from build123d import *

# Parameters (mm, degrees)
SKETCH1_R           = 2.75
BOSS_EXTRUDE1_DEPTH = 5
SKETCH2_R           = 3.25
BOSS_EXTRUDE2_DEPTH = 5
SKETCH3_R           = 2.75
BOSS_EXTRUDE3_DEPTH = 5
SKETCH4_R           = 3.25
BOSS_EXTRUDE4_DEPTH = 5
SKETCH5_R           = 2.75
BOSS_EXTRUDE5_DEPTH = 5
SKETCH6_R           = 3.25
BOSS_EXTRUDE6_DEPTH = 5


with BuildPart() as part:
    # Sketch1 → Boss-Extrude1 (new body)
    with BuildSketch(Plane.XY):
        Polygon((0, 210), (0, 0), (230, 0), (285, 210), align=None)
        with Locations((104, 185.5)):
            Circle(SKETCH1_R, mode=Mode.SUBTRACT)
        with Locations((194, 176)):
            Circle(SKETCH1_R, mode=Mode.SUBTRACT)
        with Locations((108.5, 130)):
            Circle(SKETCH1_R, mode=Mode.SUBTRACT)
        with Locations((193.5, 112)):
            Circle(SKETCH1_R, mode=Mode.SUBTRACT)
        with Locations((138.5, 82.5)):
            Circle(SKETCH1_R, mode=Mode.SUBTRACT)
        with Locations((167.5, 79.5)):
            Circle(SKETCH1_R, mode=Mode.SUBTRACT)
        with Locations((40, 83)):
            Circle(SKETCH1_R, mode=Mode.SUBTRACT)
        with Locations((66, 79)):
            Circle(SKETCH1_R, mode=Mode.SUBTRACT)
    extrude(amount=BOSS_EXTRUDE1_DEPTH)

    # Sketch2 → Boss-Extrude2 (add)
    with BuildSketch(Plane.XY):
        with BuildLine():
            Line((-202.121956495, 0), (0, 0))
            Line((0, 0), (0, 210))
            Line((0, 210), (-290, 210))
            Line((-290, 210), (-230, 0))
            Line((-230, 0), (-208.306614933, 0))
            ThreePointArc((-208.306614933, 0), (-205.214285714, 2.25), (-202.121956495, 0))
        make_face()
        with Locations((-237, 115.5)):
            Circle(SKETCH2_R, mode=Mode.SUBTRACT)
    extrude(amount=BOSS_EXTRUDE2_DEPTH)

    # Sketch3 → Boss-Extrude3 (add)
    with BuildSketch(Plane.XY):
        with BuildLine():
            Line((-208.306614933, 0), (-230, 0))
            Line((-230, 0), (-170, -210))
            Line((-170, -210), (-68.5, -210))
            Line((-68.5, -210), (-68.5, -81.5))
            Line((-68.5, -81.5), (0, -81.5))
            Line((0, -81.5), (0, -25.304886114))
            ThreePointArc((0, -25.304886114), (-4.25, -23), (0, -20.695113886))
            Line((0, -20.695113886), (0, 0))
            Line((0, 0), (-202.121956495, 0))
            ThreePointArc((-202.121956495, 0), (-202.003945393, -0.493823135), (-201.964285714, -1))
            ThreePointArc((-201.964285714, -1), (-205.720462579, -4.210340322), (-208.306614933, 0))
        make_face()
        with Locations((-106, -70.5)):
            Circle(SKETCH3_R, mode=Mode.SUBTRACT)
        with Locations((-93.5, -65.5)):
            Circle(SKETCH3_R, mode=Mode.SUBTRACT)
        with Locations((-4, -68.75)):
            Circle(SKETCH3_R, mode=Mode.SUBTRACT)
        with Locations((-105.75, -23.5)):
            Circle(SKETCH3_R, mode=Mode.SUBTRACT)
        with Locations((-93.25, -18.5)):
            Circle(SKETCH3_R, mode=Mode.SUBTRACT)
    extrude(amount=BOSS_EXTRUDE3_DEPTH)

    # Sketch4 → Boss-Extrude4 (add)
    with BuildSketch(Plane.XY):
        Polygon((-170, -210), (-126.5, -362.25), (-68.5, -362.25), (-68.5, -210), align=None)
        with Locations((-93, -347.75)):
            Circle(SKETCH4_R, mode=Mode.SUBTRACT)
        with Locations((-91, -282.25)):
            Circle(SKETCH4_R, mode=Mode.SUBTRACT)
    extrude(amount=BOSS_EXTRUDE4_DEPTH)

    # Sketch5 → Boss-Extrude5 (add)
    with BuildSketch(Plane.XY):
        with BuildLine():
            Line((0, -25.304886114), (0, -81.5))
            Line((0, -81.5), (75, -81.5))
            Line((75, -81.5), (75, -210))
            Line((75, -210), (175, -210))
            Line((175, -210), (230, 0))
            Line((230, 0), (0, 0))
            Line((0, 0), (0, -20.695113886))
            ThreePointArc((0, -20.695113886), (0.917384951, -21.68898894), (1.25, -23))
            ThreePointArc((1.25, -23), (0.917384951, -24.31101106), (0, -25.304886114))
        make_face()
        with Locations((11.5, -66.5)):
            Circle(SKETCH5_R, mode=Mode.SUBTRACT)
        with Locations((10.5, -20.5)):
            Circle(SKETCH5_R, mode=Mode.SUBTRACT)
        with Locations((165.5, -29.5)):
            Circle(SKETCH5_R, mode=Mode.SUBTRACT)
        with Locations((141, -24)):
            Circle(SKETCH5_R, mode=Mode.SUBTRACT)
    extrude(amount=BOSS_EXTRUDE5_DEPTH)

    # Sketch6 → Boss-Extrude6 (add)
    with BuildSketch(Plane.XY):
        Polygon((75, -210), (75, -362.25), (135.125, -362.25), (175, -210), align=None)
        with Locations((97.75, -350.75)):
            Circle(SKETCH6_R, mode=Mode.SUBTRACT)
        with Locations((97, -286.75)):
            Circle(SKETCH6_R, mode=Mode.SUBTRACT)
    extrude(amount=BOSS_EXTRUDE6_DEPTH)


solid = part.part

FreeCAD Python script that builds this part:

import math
import FreeCAD as App
import Part
import Sketcher

V = App.Vector
Q = App.Units.Quantity

doc = App.newDocument("Part")
body = doc.addObject("PartDesign::Body", "Body")

sketch1 = doc.addObject("Sketcher::SketchObject", "Sketch")
body.addObject(sketch1)
sketch1.AttachmentSupport = (doc.XY_Plane, [""])
sketch1.MapMode = "FlatFace"
sketch1.addGeometry([
    Part.LineSegment(V(0, 210, 0), V(0, 0, 0)),
    Part.LineSegment(V(0, 0, 0), V(230, 0, 0)),
    Part.LineSegment(V(230, 0, 0), V(285, 210, 0)),
    Part.LineSegment(V(285, 210, 0), V(0, 210, 0)),
    Part.Circle(V(40, 83, 0), V(0, 0, 1), 2.8),
    Part.Circle(V(66, 79, 0), V(0, 0, 1), 2.8),
    Part.Circle(V(108.5, 130, 0), V(0, 0, 1), 2.8),
    Part.Circle(V(138.5, 82.5, 0), V(0, 0, 1), 2.8),
    Part.Circle(V(167.5, 79.5, 0), V(0, 0, 1), 2.8),
    Part.Circle(V(193.5, 112, 0), V(0, 0, 1), 2.8),
    Part.Circle(V(104, 185.5, 0), V(0, 0, 1), 2.8),
    Part.Circle(V(194, 176, 0), V(0, 0, 1), 2.8),
], False)
sketch1.addConstraint([
    Sketcher.Constraint("Coincident", 0, 2, 1, 1),
    Sketcher.Constraint("Coincident", 1, 2, 2, 1),
    Sketcher.Constraint("Coincident", 2, 2, 3, 1),
    Sketcher.Constraint("Coincident", 3, 2, 0, 1),
    Sketcher.Constraint("Vertical", 0),
    Sketcher.Constraint("Horizontal", 1),
    Sketcher.Constraint("Horizontal", 3),
    Sketcher.Constraint("Coincident", 0, 2, -1, 1),
    Sketcher.Constraint("Equal", 4, 5),
    Sketcher.Constraint("Equal", 5, 6),
    Sketcher.Constraint("Equal", 6, 7),
    Sketcher.Constraint("Equal", 7, 8),
    Sketcher.Constraint("Equal", 8, 9),
    Sketcher.Constraint("Equal", 9, 10),
    Sketcher.Constraint("Equal", 10, 11),
    Sketcher.Constraint("Diameter", 4, Q("5.5 mm")),
    Sketcher.Constraint("DistanceX", 1, 1, 1, 2, Q("230 mm")),
    Sketcher.Constraint("DistanceX", 3, 2, 3, 1, Q("285 mm")),
    Sketcher.Constraint("DistanceY", 0, 2, 0, 1, Q("210 mm")),
    Sketcher.Constraint("DistanceX", -1, 1, 4, 3, Q("40 mm")),
    Sketcher.Constraint("DistanceY", -1, 1, 4, 3, Q("83 mm")),
    Sketcher.Constraint("DistanceX", -1, 1, 5, 3, Q("66 mm")),
    Sketcher.Constraint("DistanceY", -1, 1, 5, 3, Q("79 mm")),
    Sketcher.Constraint("DistanceY", -1, 1, 6, 3, Q("130 mm")),
    Sketcher.Constraint("DistanceY", -1, 1, 9, 3, Q("112 mm")),
    Sketcher.Constraint("DistanceX", -1, 1, 10, 3, Q("104 mm")),
    Sketcher.Constraint("DistanceX", -1, 1, 11, 3, Q("194 mm")),
    Sketcher.Constraint("DistanceY", -1, 1, 11, 3, Q("176 mm")),
    Sketcher.Constraint("DistanceX", 6, 3, 7, 3, Q("30 mm")),
    Sketcher.Constraint("DistanceX", 7, 3, 8, 3, Q("29 mm")),
    Sketcher.Constraint("DistanceY", 8, 3, 7, 3, Q("3 mm")),
    Sketcher.Constraint("DistanceX", 8, 3, 9, 3, Q("26 mm")),
    Sketcher.Constraint("DistanceY", 7, 3, 10, 3, Q("103 mm")),
    Sketcher.Constraint("DistanceX", -1, 1, 6, 3, Q("108.5 mm")),
    Sketcher.Constraint("DistanceY", -1, 1, 7, 3, Q("82.5 mm")),
])
pad1 = doc.addObject("PartDesign::Pad", "Pad")
body.addObject(pad1)
pad1.Profile = sketch1
pad1.Length = 5

sketch2 = doc.addObject("Sketcher::SketchObject", "Sketch001")
body.addObject(sketch2)
sketch2.AttachmentSupport = (doc.XY_Plane, [""])
sketch2.MapMode = "FlatFace"
sketch2.addGeometry([
    Part.LineSegment(V(-202.1, 0, 0), V(0, 0, 0)),
    Part.LineSegment(V(0, 0, 0), V(0, 210, 0)),
    Part.LineSegment(V(0, 210, 0), V(-290, 210, 0)),
    Part.LineSegment(V(-290, 210, 0), V(-230, 0, 0)),
    Part.LineSegment(V(-230, 0, 0), V(-208.3, 0, 0)),
    Part.ArcOfCircle(Part.Circle(V(-205.2, -1, 0), V(0, 0, 1), 3.2), math.radians(18), math.radians(162)),
    Part.Circle(V(-237, 115.5, 0), V(0, 0, 1), 3.2),
], False)
sketch2.addConstraint([
    Sketcher.Constraint("Coincident", 0, 2, 1, 1),
    Sketcher.Constraint("Coincident", 1, 2, 2, 1),
    Sketcher.Constraint("Coincident", 2, 2, 3, 1),
    Sketcher.Constraint("Coincident", 3, 2, 4, 1),
    Sketcher.Constraint("Coincident", 4, 2, 5, 2),
    Sketcher.Constraint("Coincident", 5, 1, 0, 1),
    Sketcher.Constraint("Horizontal", 0),
    Sketcher.Constraint("Vertical", 1),
    Sketcher.Constraint("Horizontal", 2),
    Sketcher.Constraint("Horizontal", 4),
    Sketcher.Constraint("Coincident", 0, 2, -1, 1),
    Sketcher.Constraint("Equal", 5, 6),
    Sketcher.Constraint("PointOnObject", 3, 2, -1),
    Sketcher.Constraint("Diameter", 6, Q("6.5 mm")),
    Sketcher.Constraint("DistanceX", 2, 2, 2, 1, Q("290 mm")),
    Sketcher.Constraint("DistanceY", 1, 1, 1, 2, Q("210 mm")),
    Sketcher.Constraint("DistanceY", 5, 3, -1, 1, Q("1 mm")),
    Sketcher.Constraint("DistanceX", 6, 3, -1, 1, Q("237 mm")),
    Sketcher.Constraint("DistanceX", 3, 2, -1, 1, Q("230 mm")),
    Sketcher.Constraint("DistanceY", -1, 1, 6, 3, Q("115.5 mm")),
    Sketcher.Constraint("DistanceX", 0, 1, 0, 2, Q("202.121956 mm")),
])
pad2 = doc.addObject("PartDesign::Pad", "Pad001")
body.addObject(pad2)
pad2.Profile = sketch2
pad2.Length = 5

sketch3 = doc.addObject("Sketcher::SketchObject", "Sketch002")
body.addObject(sketch3)
sketch3.AttachmentSupport = (doc.XY_Plane, [""])
sketch3.MapMode = "FlatFace"
sketch3.addGeometry([
    Part.LineSegment(V(-208.3, 0, 0), V(-230, 0, 0)),
    Part.LineSegment(V(-230, 0, 0), V(-170, -210, 0)),
    Part.LineSegment(V(-170, -210, 0), V(-68.5, -210, 0)),
    Part.LineSegment(V(-68.5, -210, 0), V(-68.5, -81.5, 0)),
    Part.LineSegment(V(-68.5, -81.5, 0), V(0, -81.5, 0)),
    Part.LineSegment(V(0, -81.5, 0), V(0, -25.3, 0)),
    Part.ArcOfCircle(Part.Circle(V(-1.5, -23, 0), V(0, 0, 1), 2.8), math.radians(57), math.radians(303)),
    Part.LineSegment(V(0, -20.7, 0), V(0, 0, 0)),
    Part.LineSegment(V(0, 0, 0), V(-202.1, 0, 0)),
    Part.ArcOfCircle(Part.Circle(V(-205.2, -1, 0), V(0, 0, 1), 3.3), math.radians(0), math.radians(17.92)),
    Part.ArcOfCircle(Part.Circle(V(-205.2, -1, 0), V(0, 0, 1), 3.2), math.radians(162), math.radians(360)),
    Part.Circle(V(-106, -70.5, 0), V(0, 0, 1), 2.8),
    Part.Circle(V(-93.5, -65.5, 0), V(0, 0, 1), 2.8),
    Part.Circle(V(-4, -68.8, 0), V(0, 0, 1), 2.8),
    Part.Circle(V(-105.8, -23.5, 0), V(0, 0, 1), 2.8),
    Part.Circle(V(-93.2, -18.5, 0), V(0, 0, 1), 2.8),
], False)
sketch3.addConstraint([
    Sketcher.Constraint("Coincident", 0, 2, 1, 1),
    Sketcher.Constraint("Coincident", 1, 2, 2, 1),
    Sketcher.Constraint("Coincident", 2, 2, 3, 1),
    Sketcher.Constraint("Coincident", 3, 2, 4, 1),
    Sketcher.Constraint("Coincident", 4, 2, 5, 1),
    Sketcher.Constraint("Coincident", 5, 2, 6, 2),
    Sketcher.Constraint("Coincident", 6, 1, 7, 1),
    Sketcher.Constraint("Coincident", 7, 2, 8, 1),
    Sketcher.Constraint("Coincident", 8, 2, 9, 2),
    Sketcher.Constraint("Tangent", 9, 1, 10, 2),
    Sketcher.Constraint("Coincident", 10, 1, 0, 1),
    Sketcher.Constraint("Horizontal", 0),
    Sketcher.Constraint("Horizontal", 2),
    Sketcher.Constraint("Vertical", 3),
    Sketcher.Constraint("Horizontal", 4),
    Sketcher.Constraint("Vertical", 5),
    Sketcher.Constraint("Vertical", 7),
    Sketcher.Constraint("Horizontal", 8),
    Sketcher.Constraint("Coincident", 7, 2, -1, 1),
    Sketcher.Constraint("Equal", 9, 10),
    Sketcher.Constraint("Equal", 6, 11),
    Sketcher.Constraint("Equal", 11, 12),
    Sketcher.Constraint("Equal", 12, 13),
    Sketcher.Constraint("Equal", 13, 14),
    Sketcher.Constraint("Equal", 14, 15),
    Sketcher.Constraint("PointOnObject", 0, 2, -1),
    Sketcher.Constraint("PointOnObject", 4, 2, -2),
    Sketcher.Constraint("Horizontal", 10, 3, 9, 1),
    Sketcher.Constraint("Diameter", 11, Q("5.5 mm")),
    Sketcher.Constraint("Radius", 9, Q("3.25 mm")),
    Sketcher.Constraint("DistanceX", 2, 1, 2, 2, Q("101.5 mm")),
    Sketcher.Constraint("DistanceX", 4, 1, 4, 2, Q("68.5 mm")),
    Sketcher.Constraint("DistanceY", 3, 1, 3, 2, Q("128.5 mm")),
    Sketcher.Constraint("DistanceY", 6, 3, -1, 1, Q("23 mm")),
    Sketcher.Constraint("DistanceY", 9, 3, -1, 1, Q("1 mm")),
    Sketcher.Constraint("DistanceX", 11, 3, -1, 1, Q("106 mm")),
    Sketcher.Constraint("DistanceX", 13, 3, -1, 1, Q("4 mm")),
    Sketcher.Constraint("DistanceX", 0, 2, -1, 1, Q("230 mm")),
    Sketcher.Constraint("DistanceY", 1, 2, -1, 1, Q("210 mm")),
    Sketcher.Constraint("DistanceY", 11, 3, 12, 3, Q("5 mm")),
    Sketcher.Constraint("DistanceX", 12, 3, 6, 3, Q("92 mm")),
    Sketcher.Constraint("DistanceY", 12, 3, 14, 3, Q("42 mm")),
    Sketcher.Constraint("DistanceY", 14, 3, 15, 3, Q("5 mm")),
    Sketcher.Constraint("DistanceX", 12, 3, 2, 2, Q("25 mm")),
    Sketcher.Constraint("DistanceY", 3, 2, 12, 3, Q("16 mm")),
    Sketcher.Constraint("DistanceX", 14, 3, 15, 3, Q("12.5 mm")),
    Sketcher.Constraint("DistanceY", 13, 3, -1, 1, Q("68.75 mm")),
    Sketcher.Constraint("DistanceX", 14, 3, -1, 1, Q("105.75 mm")),
    Sketcher.Constraint("DistanceX", 0, 2, 0, 1, Q("21.693385 mm")),
])
pad3 = doc.addObject("PartDesign::Pad", "Pad002")
body.addObject(pad3)
pad3.Profile = sketch3
pad3.Length = 5

sketch4 = doc.addObject("Sketcher::SketchObject", "Sketch003")
body.addObject(sketch4)
sketch4.AttachmentSupport = (doc.XY_Plane, [""])
sketch4.MapMode = "FlatFace"
sketch4.addGeometry([
    Part.LineSegment(V(-170, -210, 0), V(-126.5, -362.2, 0)),
    Part.LineSegment(V(-126.5, -362.2, 0), V(-68.5, -362.2, 0)),
    Part.LineSegment(V(-68.5, -362.2, 0), V(-68.5, -210, 0)),
    Part.LineSegment(V(-68.5, -210, 0), V(-170, -210, 0)),
    Part.Circle(V(-93, -347.8, 0), V(0, 0, 1), 3.2),
    Part.Circle(V(-91, -282.2, 0), V(0, 0, 1), 3.2),
], False)
sketch4.addConstraint([
    Sketcher.Constraint("Coincident", 0, 2, 1, 1),
    Sketcher.Constraint("Coincident", 1, 2, 2, 1),
    Sketcher.Constraint("Coincident", 2, 2, 3, 1),
    Sketcher.Constraint("Coincident", 3, 2, 0, 1),
    Sketcher.Constraint("Horizontal", 1),
    Sketcher.Constraint("Vertical", 2),
    Sketcher.Constraint("Horizontal", 3),
    Sketcher.Constraint("Equal", 4, 5),
    Sketcher.Constraint("Diameter", 4, Q("6.5 mm")),
    Sketcher.Constraint("DistanceX", 1, 1, 1, 2, Q("58 mm")),
    Sketcher.Constraint("DistanceX", 3, 2, 3, 1, Q("101.5 mm")),
    Sketcher.Constraint("DistanceX", 4, 3, -1, 1, Q("93 mm")),
    Sketcher.Constraint("DistanceX", 5, 3, -1, 1, Q("91 mm")),
    Sketcher.Constraint("DistanceY", 2, 2, -1, 1, Q("210 mm")),
    Sketcher.Constraint("DistanceX", 3, 2, -1, 1, Q("170 mm")),
    Sketcher.Constraint("DistanceY", 0, 2, 5, 3, Q("80 mm")),
    Sketcher.Constraint("DistanceY", 2, 1, 2, 2, Q("152.25 mm")),
    Sketcher.Constraint("DistanceY", 4, 3, 5, 3, Q("65.5 mm")),
])
pad4 = doc.addObject("PartDesign::Pad", "Pad003")
body.addObject(pad4)
pad4.Profile = sketch4
pad4.Length = 5

sketch5 = doc.addObject("Sketcher::SketchObject", "Sketch004")
body.addObject(sketch5)
sketch5.AttachmentSupport = (doc.XY_Plane, [""])
sketch5.MapMode = "FlatFace"
sketch5.addGeometry([
    Part.LineSegment(V(0, -25.3, 0), V(0, -81.5, 0)),
    Part.LineSegment(V(0, -81.5, 0), V(75, -81.5, 0)),
    Part.LineSegment(V(75, -81.5, 0), V(75, -210, 0)),
    Part.LineSegment(V(75, -210, 0), V(175, -210, 0)),
    Part.LineSegment(V(175, -210, 0), V(230, 0, 0)),
    Part.LineSegment(V(230, 0, 0), V(0, 0, 0)),
    Part.LineSegment(V(0, 0, 0), V(0, -20.7, 0)),
    Part.ArcOfCircle(Part.Circle(V(-1.5, -23, 0), V(0, 0, 1), 2.7), math.radians(0), math.radians(57)),
    Part.ArcOfCircle(Part.Circle(V(-1.5, -23, 0), V(0, 0, 1), 2.7), math.radians(-57), math.radians(0)),
    Part.Circle(V(11.5, -66.5, 0), V(0, 0, 1), 2.8),
    Part.Circle(V(10.5, -20.5, 0), V(0, 0, 1), 2.8),
    Part.Circle(V(165.5, -29.5, 0), V(0, 0, 1), 2.8),
    Part.Circle(V(141, -24, 0), V(0, 0, 1), 2.8),
], False)
sketch5.addConstraint([
    Sketcher.Constraint("Coincident", 0, 2, 1, 1),
    Sketcher.Constraint("Coincident", 1, 2, 2, 1),
    Sketcher.Constraint("Coincident", 2, 2, 3, 1),
    Sketcher.Constraint("Coincident", 3, 2, 4, 1),
    Sketcher.Constraint("Coincident", 4, 2, 5, 1),
    Sketcher.Constraint("Coincident", 5, 2, 6, 1),
    Sketcher.Constraint("Coincident", 6, 2, 7, 2),
    Sketcher.Constraint("Tangent", 7, 1, 8, 2),
    Sketcher.Constraint("Coincident", 8, 1, 0, 1),
    Sketcher.Constraint("Vertical", 0),
    Sketcher.Constraint("Horizontal", 1),
    Sketcher.Constraint("Vertical", 2),
    Sketcher.Constraint("Horizontal", 3),
    Sketcher.Constraint("Horizontal", 5),
    Sketcher.Constraint("Vertical", 6),
    Sketcher.Constraint("Coincident", 5, 2, -1, 1),
    Sketcher.Constraint("Equal", 7, 8),
    Sketcher.Constraint("Equal", 8, 9),
    Sketcher.Constraint("Equal", 9, 10),
    Sketcher.Constraint("Equal", 10, 11),
    Sketcher.Constraint("Equal", 11, 12),
    Sketcher.Constraint("PointOnObject", 0, 2, -2),
    Sketcher.Constraint("Horizontal", 8, 3, 7, 1),
    Sketcher.Constraint("Diameter", 9, Q("5.5 mm")),
    Sketcher.Constraint("DistanceX", 1, 1, 1, 2, Q("75 mm")),
    Sketcher.Constraint("DistanceX", 3, 1, 3, 2, Q("100 mm")),
    Sketcher.Constraint("DistanceX", 5, 2, 5, 1, Q("230 mm")),
    Sketcher.Constraint("DistanceY", 2, 2, 2, 1, Q("128.5 mm")),
    Sketcher.Constraint("DistanceY", 7, 3, -1, 1, Q("23 mm")),
    Sketcher.Constraint("DistanceX", -1, 1, 12, 3, Q("141 mm")),
    Sketcher.Constraint("DistanceY", 12, 3, -1, 1, Q("24 mm")),
    Sketcher.Constraint("DistanceY", 2, 2, -1, 1, Q("210 mm")),
    Sketcher.Constraint("DistanceX", 8, 3, 9, 3, Q("13 mm")),
    Sketcher.Constraint("DistanceX", 7, 3, 10, 3, Q("12 mm")),
    Sketcher.Constraint("DistanceY", 9, 3, 10, 3, Q("46 mm")),
    Sketcher.Constraint("DistanceX", 10, 3, 11, 3, Q("155 mm")),
    Sketcher.Constraint("DistanceY", 11, 3, 10, 3, Q("9 mm")),
    Sketcher.Constraint("DistanceY", 0, 2, 9, 3, Q("15 mm")),
    Sketcher.Constraint("DistanceX", 7, 3, -1, 1, Q("1.5 mm")),
])
pad5 = doc.addObject("PartDesign::Pad", "Pad004")
body.addObject(pad5)
pad5.Profile = sketch5
pad5.Length = 5

sketch6 = doc.addObject("Sketcher::SketchObject", "Sketch005")
body.addObject(sketch6)
sketch6.AttachmentSupport = (doc.XY_Plane, [""])
sketch6.MapMode = "FlatFace"
sketch6.addGeometry([
    Part.LineSegment(V(75, -210, 0), V(75, -362.2, 0)),
    Part.LineSegment(V(75, -362.2, 0), V(135.1, -362.2, 0)),
    Part.LineSegment(V(135.1, -362.2, 0), V(175, -210, 0)),
    Part.LineSegment(V(175, -210, 0), V(75, -210, 0)),
    Part.Circle(V(97.8, -350.8, 0), V(0, 0, 1), 3.2),
    Part.Circle(V(97, -286.8, 0), V(0, 0, 1), 3.2),
], False)
sketch6.addConstraint([
    Sketcher.Constraint("Coincident", 0, 2, 1, 1),
    Sketcher.Constraint("Coincident", 1, 2, 2, 1),
    Sketcher.Constraint("Coincident", 2, 2, 3, 1),
    Sketcher.Constraint("Coincident", 3, 2, 0, 1),
    Sketcher.Constraint("Vertical", 0),
    Sketcher.Constraint("Horizontal", 1),
    Sketcher.Constraint("Horizontal", 3),
    Sketcher.Constraint("Equal", 4, 5),
    Sketcher.Constraint("Diameter", 4, Q("6.5 mm")),
    Sketcher.Constraint("DistanceX", 3, 2, 3, 1, Q("100 mm")),
    Sketcher.Constraint("DistanceX", -1, 1, 5, 3, Q("97 mm")),
    Sketcher.Constraint("DistanceX", -1, 1, 0, 2, Q("75 mm")),
    Sketcher.Constraint("DistanceY", 2, 2, -1, 1, Q("210 mm")),
    Sketcher.Constraint("DistanceY", 4, 3, 5, 3, Q("64 mm")),
    Sketcher.Constraint("DistanceY", 0, 2, 0, 1, Q("152.25 mm")),
    Sketcher.Constraint("DistanceY", 0, 2, 4, 3, Q("11.5 mm")),
    Sketcher.Constraint("DistanceX", 1, 1, 1, 2, Q("60.125 mm")),
    Sketcher.Constraint("DistanceX", -1, 1, 4, 3, Q("97.75 mm")),
])
pad6 = doc.addObject("PartDesign::Pad", "Pad005")
body.addObject(pad6)
pad6.Profile = sketch6
pad6.Length = 5

doc.recompute()
